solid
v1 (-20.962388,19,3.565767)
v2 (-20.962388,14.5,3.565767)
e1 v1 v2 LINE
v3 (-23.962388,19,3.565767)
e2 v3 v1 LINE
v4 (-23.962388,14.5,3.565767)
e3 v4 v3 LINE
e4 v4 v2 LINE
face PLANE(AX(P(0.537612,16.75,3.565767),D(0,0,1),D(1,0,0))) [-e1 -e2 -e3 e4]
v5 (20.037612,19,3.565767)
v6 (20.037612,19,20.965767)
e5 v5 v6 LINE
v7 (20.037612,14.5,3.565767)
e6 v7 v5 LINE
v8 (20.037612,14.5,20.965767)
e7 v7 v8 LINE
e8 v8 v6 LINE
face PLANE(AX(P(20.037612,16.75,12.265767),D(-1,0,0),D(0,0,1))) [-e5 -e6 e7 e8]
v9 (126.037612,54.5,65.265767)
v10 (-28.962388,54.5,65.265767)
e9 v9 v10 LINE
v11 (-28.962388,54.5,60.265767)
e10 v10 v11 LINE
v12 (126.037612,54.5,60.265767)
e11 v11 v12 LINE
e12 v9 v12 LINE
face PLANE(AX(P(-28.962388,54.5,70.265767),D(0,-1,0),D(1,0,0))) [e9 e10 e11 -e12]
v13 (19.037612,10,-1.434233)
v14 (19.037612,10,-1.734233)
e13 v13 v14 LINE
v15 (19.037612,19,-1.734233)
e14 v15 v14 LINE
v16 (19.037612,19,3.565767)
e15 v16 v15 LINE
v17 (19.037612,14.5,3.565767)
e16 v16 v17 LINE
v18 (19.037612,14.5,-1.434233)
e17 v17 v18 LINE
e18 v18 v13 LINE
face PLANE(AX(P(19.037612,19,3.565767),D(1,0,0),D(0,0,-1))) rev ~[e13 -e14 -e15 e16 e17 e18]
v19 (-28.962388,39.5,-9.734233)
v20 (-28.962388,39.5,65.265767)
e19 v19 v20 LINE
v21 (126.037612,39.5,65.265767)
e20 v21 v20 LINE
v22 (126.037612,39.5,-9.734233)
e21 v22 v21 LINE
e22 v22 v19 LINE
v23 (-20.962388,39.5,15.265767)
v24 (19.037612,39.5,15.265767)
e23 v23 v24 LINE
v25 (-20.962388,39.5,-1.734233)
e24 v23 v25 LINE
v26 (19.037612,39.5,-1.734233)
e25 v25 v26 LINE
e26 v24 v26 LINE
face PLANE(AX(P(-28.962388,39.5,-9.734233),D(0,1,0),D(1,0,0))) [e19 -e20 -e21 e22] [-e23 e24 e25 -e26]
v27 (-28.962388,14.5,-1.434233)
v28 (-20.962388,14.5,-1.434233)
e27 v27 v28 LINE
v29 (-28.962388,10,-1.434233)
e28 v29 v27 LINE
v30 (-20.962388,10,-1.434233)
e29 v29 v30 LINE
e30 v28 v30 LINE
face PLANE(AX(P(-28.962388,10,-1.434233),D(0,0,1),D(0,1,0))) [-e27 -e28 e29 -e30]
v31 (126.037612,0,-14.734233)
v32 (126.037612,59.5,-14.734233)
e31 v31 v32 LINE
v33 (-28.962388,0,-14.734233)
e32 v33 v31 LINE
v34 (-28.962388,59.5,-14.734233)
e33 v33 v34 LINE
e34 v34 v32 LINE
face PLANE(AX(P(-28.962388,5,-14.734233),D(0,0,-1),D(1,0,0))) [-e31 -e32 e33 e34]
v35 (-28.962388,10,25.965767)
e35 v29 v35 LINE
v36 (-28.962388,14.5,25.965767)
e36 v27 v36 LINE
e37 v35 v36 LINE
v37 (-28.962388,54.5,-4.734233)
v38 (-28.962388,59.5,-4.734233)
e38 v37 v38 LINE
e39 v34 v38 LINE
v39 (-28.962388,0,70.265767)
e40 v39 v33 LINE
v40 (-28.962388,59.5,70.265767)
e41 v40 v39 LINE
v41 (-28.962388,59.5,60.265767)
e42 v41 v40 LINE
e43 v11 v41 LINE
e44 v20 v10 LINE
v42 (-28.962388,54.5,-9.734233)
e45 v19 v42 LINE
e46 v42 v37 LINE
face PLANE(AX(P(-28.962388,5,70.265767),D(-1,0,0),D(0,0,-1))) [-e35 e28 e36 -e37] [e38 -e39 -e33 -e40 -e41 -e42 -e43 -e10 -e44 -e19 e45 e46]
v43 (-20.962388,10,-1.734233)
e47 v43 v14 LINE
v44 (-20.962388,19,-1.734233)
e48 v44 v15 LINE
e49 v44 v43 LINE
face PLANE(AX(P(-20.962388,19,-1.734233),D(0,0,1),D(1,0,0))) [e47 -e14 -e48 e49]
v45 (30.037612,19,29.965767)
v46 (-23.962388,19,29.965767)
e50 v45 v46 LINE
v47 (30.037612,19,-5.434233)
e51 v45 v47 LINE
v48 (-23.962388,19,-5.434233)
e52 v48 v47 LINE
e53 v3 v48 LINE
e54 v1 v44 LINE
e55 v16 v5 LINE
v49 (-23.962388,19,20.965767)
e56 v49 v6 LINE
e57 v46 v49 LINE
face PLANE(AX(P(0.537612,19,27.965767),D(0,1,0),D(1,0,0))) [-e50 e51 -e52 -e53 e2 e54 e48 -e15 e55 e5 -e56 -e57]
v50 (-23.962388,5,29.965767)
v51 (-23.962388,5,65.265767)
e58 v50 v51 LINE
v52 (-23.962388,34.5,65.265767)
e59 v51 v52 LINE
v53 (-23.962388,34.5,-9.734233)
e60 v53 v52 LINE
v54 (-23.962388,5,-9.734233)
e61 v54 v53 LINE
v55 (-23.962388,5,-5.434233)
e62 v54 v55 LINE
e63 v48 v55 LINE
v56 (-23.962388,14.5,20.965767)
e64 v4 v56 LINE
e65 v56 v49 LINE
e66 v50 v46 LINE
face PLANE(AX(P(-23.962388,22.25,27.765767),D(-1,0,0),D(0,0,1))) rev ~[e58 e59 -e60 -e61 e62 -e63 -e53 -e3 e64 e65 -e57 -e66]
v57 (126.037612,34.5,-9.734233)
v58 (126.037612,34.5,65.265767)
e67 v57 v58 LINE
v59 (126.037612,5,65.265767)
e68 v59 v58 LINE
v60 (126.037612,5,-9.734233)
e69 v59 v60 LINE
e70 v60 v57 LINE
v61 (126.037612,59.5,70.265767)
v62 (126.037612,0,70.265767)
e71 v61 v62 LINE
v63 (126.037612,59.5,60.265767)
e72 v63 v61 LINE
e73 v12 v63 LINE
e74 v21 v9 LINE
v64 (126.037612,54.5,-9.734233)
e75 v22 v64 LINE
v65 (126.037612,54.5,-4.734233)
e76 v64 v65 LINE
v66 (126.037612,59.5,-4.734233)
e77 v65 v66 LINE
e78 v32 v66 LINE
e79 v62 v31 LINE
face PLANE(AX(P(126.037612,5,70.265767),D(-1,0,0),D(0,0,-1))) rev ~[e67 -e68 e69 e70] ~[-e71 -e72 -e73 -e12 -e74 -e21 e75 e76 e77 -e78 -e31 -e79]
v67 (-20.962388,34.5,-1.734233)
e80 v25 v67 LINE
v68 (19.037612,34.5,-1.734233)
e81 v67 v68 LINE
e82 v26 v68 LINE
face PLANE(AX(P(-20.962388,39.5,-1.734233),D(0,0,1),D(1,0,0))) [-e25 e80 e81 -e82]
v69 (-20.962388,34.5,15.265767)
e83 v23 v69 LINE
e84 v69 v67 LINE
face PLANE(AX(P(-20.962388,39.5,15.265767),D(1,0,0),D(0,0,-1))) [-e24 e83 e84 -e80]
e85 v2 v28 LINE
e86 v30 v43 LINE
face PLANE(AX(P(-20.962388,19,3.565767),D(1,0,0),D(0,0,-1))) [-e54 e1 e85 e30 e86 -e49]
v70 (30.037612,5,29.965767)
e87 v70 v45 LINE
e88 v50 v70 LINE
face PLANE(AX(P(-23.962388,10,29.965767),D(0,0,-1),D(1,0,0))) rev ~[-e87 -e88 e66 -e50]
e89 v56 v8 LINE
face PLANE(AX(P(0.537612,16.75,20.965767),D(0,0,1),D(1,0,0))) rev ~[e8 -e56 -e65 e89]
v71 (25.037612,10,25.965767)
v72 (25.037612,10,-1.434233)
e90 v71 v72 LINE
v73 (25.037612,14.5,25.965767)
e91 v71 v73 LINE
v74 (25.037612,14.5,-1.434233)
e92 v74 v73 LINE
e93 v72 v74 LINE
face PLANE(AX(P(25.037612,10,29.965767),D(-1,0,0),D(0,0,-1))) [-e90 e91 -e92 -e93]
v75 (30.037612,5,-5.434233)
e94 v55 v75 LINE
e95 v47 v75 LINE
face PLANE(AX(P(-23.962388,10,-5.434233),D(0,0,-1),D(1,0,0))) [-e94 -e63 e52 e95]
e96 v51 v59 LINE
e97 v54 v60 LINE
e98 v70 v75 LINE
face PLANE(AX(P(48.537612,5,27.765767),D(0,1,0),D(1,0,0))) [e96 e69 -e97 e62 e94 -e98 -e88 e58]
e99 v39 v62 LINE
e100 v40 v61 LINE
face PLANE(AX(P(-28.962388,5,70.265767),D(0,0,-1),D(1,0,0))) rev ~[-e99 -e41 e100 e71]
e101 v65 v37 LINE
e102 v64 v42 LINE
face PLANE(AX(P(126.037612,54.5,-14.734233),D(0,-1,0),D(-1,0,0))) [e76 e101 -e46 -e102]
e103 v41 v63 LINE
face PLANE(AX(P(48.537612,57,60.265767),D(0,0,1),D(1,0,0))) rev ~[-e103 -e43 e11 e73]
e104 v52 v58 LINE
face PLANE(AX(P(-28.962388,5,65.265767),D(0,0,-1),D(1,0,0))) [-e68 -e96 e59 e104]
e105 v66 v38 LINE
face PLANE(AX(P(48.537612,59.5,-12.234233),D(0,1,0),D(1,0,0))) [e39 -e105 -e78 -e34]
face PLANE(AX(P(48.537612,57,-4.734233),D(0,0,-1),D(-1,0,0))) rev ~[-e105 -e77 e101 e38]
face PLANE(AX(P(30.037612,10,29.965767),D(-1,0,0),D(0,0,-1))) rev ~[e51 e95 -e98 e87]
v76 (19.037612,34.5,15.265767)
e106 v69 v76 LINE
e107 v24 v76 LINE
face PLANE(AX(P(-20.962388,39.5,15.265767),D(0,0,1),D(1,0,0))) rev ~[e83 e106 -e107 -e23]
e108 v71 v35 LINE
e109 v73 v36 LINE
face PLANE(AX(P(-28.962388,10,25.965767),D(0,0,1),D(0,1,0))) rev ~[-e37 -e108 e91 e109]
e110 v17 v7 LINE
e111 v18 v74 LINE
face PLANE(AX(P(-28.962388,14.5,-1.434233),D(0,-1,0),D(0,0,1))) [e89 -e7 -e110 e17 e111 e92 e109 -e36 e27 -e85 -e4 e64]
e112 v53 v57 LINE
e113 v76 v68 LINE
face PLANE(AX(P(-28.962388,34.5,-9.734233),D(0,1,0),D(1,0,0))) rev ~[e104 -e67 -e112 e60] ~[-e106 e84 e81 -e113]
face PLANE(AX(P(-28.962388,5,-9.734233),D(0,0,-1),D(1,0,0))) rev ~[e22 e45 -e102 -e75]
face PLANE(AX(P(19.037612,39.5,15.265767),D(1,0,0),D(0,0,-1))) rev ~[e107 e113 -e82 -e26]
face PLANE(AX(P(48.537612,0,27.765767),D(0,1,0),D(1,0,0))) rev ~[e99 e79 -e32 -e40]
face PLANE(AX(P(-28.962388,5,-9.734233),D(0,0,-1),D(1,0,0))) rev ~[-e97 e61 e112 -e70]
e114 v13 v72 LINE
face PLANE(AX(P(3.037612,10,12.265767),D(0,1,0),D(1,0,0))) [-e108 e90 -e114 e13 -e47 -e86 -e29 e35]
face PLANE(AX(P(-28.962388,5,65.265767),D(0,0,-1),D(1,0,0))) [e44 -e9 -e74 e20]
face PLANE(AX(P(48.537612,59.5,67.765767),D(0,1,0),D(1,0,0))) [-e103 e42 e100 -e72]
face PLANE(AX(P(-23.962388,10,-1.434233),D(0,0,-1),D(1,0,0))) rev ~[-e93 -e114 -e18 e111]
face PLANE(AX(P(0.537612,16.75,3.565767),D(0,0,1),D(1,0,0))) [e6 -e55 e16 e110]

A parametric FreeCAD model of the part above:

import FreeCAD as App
import Part
import Sketcher
from FreeCAD import Vector

doc = App.newDocument("Part")
body = doc.addObject("PartDesign::Body", "Body")

# Sketch on XZ plane
sketch1 = body.newObject("Sketcher::SketchObject", "Sketch")
sketch1.AttachmentSupport = (doc.getObject("XZ_Plane"), [""])
sketch1.MapMode = "FlatFace"
sketch1.addGeometry(Part.LineSegment(Vector(-29, -15, 0), Vector(-29, 70, 0)), False)
sketch1.addGeometry(Part.LineSegment(Vector(-29, 70, 0), Vector(126, 70, 0)), False)
sketch1.addGeometry(Part.LineSegment(Vector(126, 70, 0), Vector(126, -15, 0)), False)
sketch1.addGeometry(Part.LineSegment(Vector(126, -15, 0), Vector(-29, -15, 0)), False)
sketch1.addConstraint(Sketcher.Constraint("Coincident", 0, 2, 1, 1))
sketch1.addConstraint(Sketcher.Constraint("Coincident", 1, 2, 2, 1))
sketch1.addConstraint(Sketcher.Constraint("Coincident", 2, 2, 3, 1))
sketch1.addConstraint(Sketcher.Constraint("Coincident", 3, 2, 0, 1))
sketch1.addConstraint(Sketcher.Constraint("Vertical", 0))
sketch1.addConstraint(Sketcher.Constraint("Horizontal", 1))
sketch1.addConstraint(Sketcher.Constraint("Vertical", 2))
sketch1.addConstraint(Sketcher.Constraint("Horizontal", 3))
sketch1.addConstraint(Sketcher.Constraint("DistanceX", 1, 1, 1, 2, 155.0))
sketch1.addConstraint(Sketcher.Constraint("DistanceY", 0, 1, 0, 2, 85.0))
sketch1.addConstraint(Sketcher.Constraint("DistanceX", 0, 2, -1, 1, 28.962388))
sketch1.addConstraint(Sketcher.Constraint("DistanceY", -1, 1, 0, 2, 70.265767))
pad1 = body.newObject("PartDesign::Pad", "Pad")
pad1.Profile = sketch1
pad1.Length = 5
pad1.Reversed = True

# Sketch on XZ plane
sketch2 = body.newObject("Sketcher::SketchObject", "Sketch001")
sketch2.AttachmentSupport = (doc.getObject("XZ_Plane"), [""])
sketch2.MapMode = "FlatFace"
sketch2.AttachmentOffset = App.Placement(Vector(0, 0, -5), App.Rotation())
sketch2.addGeometry(Part.LineSegment(Vector(-24, -5, 0), Vector(-24, 30, 0)), False)
sketch2.addGeometry(Part.LineSegment(Vector(-24, 30, 0), Vector(30, 30, 0)), False)
sketch2.addGeometry(Part.LineSegment(Vector(30, 30, 0), Vector(30, -5, 0)), False)
sketch2.addGeometry(Part.LineSegment(Vector(30, -5, 0), Vector(-24, -5, 0)), False)
sketch2.addConstraint(Sketcher.Constraint("Coincident", 0, 2, 1, 1))
sketch2.addConstraint(Sketcher.Constraint("Coincident", 1, 2, 2, 1))
sketch2.addConstraint(Sketcher.Constraint("Coincident", 2, 2, 3, 1))
sketch2.addConstraint(Sketcher.Constraint("Coincident", 3, 2, 0, 1))
sketch2.addConstraint(Sketcher.Constraint("Vertical", 0))
sketch2.addConstraint(Sketcher.Constraint("Horizontal", 1))
sketch2.addConstraint(Sketcher.Constraint("Vertical", 2))
sketch2.addConstraint(Sketcher.Constraint("Horizontal", 3))
sketch2.addConstraint(Sketcher.Constraint("DistanceX", 1, 1, 1, 2, 54.0))
sketch2.addConstraint(Sketcher.Constraint("DistanceY", 0, 1, 0, 2, 35.4))
sketch2.addConstraint(Sketcher.Constraint("DistanceX", 0, 2, -1, 1, 23.962388))
sketch2.addConstraint(Sketcher.Constraint("DistanceY", -1, 1, 0, 2, 29.965767))
pad2 = body.newObject("PartDesign::Pad", "Pad001")
pad2.Profile = sketch2
pad2.Length = 5
pad2.Reversed = True

# Sketch on XZ plane
sketch3 = body.newObject("Sketcher::SketchObject", "Sketch002")
sketch3.AttachmentSupport = (doc.getObject("XZ_Plane"), [""])
sketch3.MapMode = "FlatFace"
sketch3.AttachmentOffset = App.Placement(Vector(0, 0, -10), App.Rotation())
sketch3.addGeometry(Part.LineSegment(Vector(25, -5, 0), Vector(25, 30, 0)), False)
sketch3.addGeometry(Part.LineSegment(Vector(25, 30, 0), Vector(30, 30, 0)), False)
sketch3.addGeometry(Part.LineSegment(Vector(30, 30, 0), Vector(30, -5, 0)), False)
sketch3.addGeometry(Part.LineSegment(Vector(30, -5, 0), Vector(25, -5, 0)), False)
sketch3.addConstraint(Sketcher.Constraint("Coincident", 0, 2, 1, 1))
sketch3.addConstraint(Sketcher.Constraint("Coincident", 1, 2, 2, 1))
sketch3.addConstraint(Sketcher.Constraint("Coincident", 2, 2, 3, 1))
sketch3.addConstraint(Sketcher.Constraint("Coincident", 3, 2, 0, 1))
sketch3.addConstraint(Sketcher.Constraint("Vertical", 0))
sketch3.addConstraint(Sketcher.Constraint("Horizontal", 1))
sketch3.addConstraint(Sketcher.Constraint("Vertical", 2))
sketch3.addConstraint(Sketcher.Constraint("Horizontal", 3))
sketch3.addConstraint(Sketcher.Constraint("DistanceX", 1, 1, 1, 2, 5.0))
sketch3.addConstraint(Sketcher.Constraint("DistanceY", 0, 1, 0, 2, 35.4))
sketch3.addConstraint(Sketcher.Constraint("DistanceX", -1, 1, 0, 2, 25.037612))
sketch3.addConstraint(Sketcher.Constraint("DistanceY", -1, 1, 0, 2, 29.965767))
pad3 = body.newObject("PartDesign::Pad", "Pad002")
pad3.Profile = sketch3
pad3.Length = 9
pad3.Reversed = True

# Sketch on XZ plane
sketch4 = body.newObject("Sketcher::SketchObject", "Sketch003")
sketch4.AttachmentSupport = (doc.getObject("XZ_Plane"), [""])
sketch4.MapMode = "FlatFace"
sketch4.AttachmentOffset = App.Placement(Vector(0, 0, -10), App.Rotation())
sketch4.addGeometry(Part.LineSegment(Vector(-24, -5.4, 0), Vector(-24, -1.4, 0)), False)
sketch4.addGeometry(Part.LineSegment(Vector(-24, -1.4, 0), Vector(25, -1.4, 0)), False)
sketch4.addGeometry(Part.LineSegment(Vector(25, -1.4, 0), Vector(25, -5.4, 0)), False)
sketch4.addGeometry(Part.LineSegment(Vector(25, -5.4, 0), Vector(-24, -5.4, 0)), False)
sketch4.addConstraint(Sketcher.Constraint("Coincident", 0, 2, 1, 1))
sketch4.addConstraint(Sketcher.Constraint("Coincident", 1, 2, 2, 1))
sketch4.addConstraint(Sketcher.Constraint("Coincident", 2, 2, 3, 1))
sketch4.addConstraint(Sketcher.Constraint("Coincident", 3, 2, 0, 1))
sketch4.addConstraint(Sketcher.Constraint("Vertical", 0))
sketch4.addConstraint(Sketcher.Constraint("Horizontal", 1))
sketch4.addConstraint(Sketcher.Constraint("Vertical", 2))
sketch4.addConstraint(Sketcher.Constraint("Horizontal", 3))
sketch4.addConstraint(Sketcher.Constraint("DistanceX", 1, 1, 1, 2, 49.0))
sketch4.addConstraint(Sketcher.Constraint("DistanceY", 0, 1, 0, 2, 4.0))
sketch4.addConstraint(Sketcher.Constraint("DistanceX", 0, 2, -1, 1, 23.962388))
sketch4.addConstraint(Sketcher.Constraint("DistanceY", 0, 2, -1, 1, 1.434233))
pad4 = body.newObject("PartDesign::Pad", "Pad003")
pad4.Profile = sketch4
pad4.Length = 9
pad4.Reversed = True

# Sketch on XY plane
sketch5 = body.newObject("Sketcher::SketchObject", "Sketch004")
sketch5.AttachmentSupport = (doc.getObject("XY_Plane"), [""])
sketch5.MapMode = "FlatFace"
sketch5.AttachmentOffset = App.Placement(Vector(0, 0, -1.434233), App.Rotation())
sketch5.addGeometry(Part.LineSegment(Vector(-24, 19, 0), Vector(-24, 14.5, 0)), False)
sketch5.addGeometry(Part.LineSegment(Vector(-24, 14.5, 0), Vector(25, 14.5, 0)), False)
sketch5.addGeometry(Part.LineSegment(Vector(25, 14.5, 0), Vector(25, 19, 0)), False)
sketch5.addGeometry(Part.LineSegment(Vector(25, 19, 0), Vector(-24, 19, 0)), False)
sketch5.addConstraint(Sketcher.Constraint("Coincident", 0, 2, 1, 1))
sketch5.addConstraint(Sketcher.Constraint("Coincident", 1, 2, 2, 1))
sketch5.addConstraint(Sketcher.Constraint("Coincident", 2, 2, 3, 1))
sketch5.addConstraint(Sketcher.Constraint("Coincident", 3, 2, 0, 1))
sketch5.addConstraint(Sketcher.Constraint("Vertical", 0))
sketch5.addConstraint(Sketcher.Constraint("Horizontal", 1))
sketch5.addConstraint(Sketcher.Constraint("Vertical", 2))
sketch5.addConstraint(Sketcher.Constraint("Horizontal", 3))
sketch5.addConstraint(Sketcher.Constraint("DistanceX", 1, 1, 1, 2, 49.0))
sketch5.addConstraint(Sketcher.Constraint("DistanceY", 0, 2, 0, 1, 4.5))
sketch5.addConstraint(Sketcher.Constraint("DistanceY", -1, 1, 2, 2, 19.0))
sketch5.addConstraint(Sketcher.Constraint("DistanceX", 0, 2, -1, 1, 23.962388))
pad5 = body.newObject("PartDesign::Pad", "Pad004")
pad5.Profile = sketch5
pad5.Length = 5

# Sketch on YZ plane
sketch6 = body.newObject("Sketcher::SketchObject", "Sketch005")
sketch6.AttachmentSupport = (doc.getObject("YZ_Plane"), [""])
sketch6.MapMode = "FlatFace"
sketch6.AttachmentOffset = App.Placement(Vector(0, 0, 25.037612), App.Rotation())
sketch6.addGeometry(Part.LineSegment(Vector(19, 3.6, 0), Vector(14.5, 3.6, 0)), False)
sketch6.addGeometry(Part.LineSegment(Vector(14.5, 3.6, 0), Vector(14.5, 21, 0)), False)
sketch6.addGeometry(Part.LineSegment(Vector(14.5, 21, 0), Vector(19, 21, 0)), False)
sketch6.addGeometry(Part.LineSegment(Vector(19, 21, 0), Vector(19, 3.6, 0)), False)
sketch6.addConstraint(Sketcher.Constraint("Coincident", 0, 2, 1, 1))
sketch6.addConstraint(Sketcher.Constraint("Coincident", 1, 2, 2, 1))
sketch6.addConstraint(Sketcher.Constraint("Coincident", 2, 2, 3, 1))
sketch6.addConstraint(Sketcher.Constraint("Coincident", 3, 2, 0, 1))
sketch6.addConstraint(Sketcher.Constraint("Horizontal", 0))
sketch6.addConstraint(Sketcher.Constraint("Vertical", 1))
sketch6.addConstraint(Sketcher.Constraint("Horizontal", 2))
sketch6.addConstraint(Sketcher.Constraint("Vertical", 3))
sketch6.addConstraint(Sketcher.Constraint("DistanceX", 0, 2, 0, 1, 4.5))
sketch6.addConstraint(Sketcher.Constraint("DistanceY", 1, 1, 1, 2, 17.4))
sketch6.addConstraint(Sketcher.Constraint("DistanceX", -1, 1, 2, 2, 19.0))
sketch6.addConstraint(Sketcher.Constraint("DistanceY", -1, 1, 0, 2, 3.565767))
pad6 = body.newObject("PartDesign::Pad", "Pad005")
pad6.Profile = sketch6
pad6.Length = 5
pad6.Reversed = True

# Sketch on XZ plane
sketch7 = body.newObject("Sketcher::SketchObject", "Sketch006")
sketch7.AttachmentSupport = (doc.getObject("XZ_Plane"), [""])
sketch7.MapMode = "FlatFace"
sketch7.AttachmentOffset = App.Placement(Vector(0, 0, -10), App.Rotation())
sketch7.addGeometry(Part.LineSegment(Vector(-24, 26, 0), Vector(-24, 30, 0)), False)
sketch7.addGeometry(Part.LineSegment(Vector(-24, 30, 0), Vector(25, 30, 0)), False)
sketch7.addGeometry(Part.LineSegment(Vector(25, 30, 0), Vector(25, 26, 0)), False)
sketch7.addGeometry(Part.LineSegment(Vector(25, 26, 0), Vector(-24, 26, 0)), False)
sketch7.addConstraint(Sketcher.Constraint("Coincident", 0, 2, 1, 1))
sketch7.addConstraint(Sketcher.Constraint("Coincident", 1, 2, 2, 1))
sketch7.addConstraint(Sketcher.Constraint("Coincident", 2, 2, 3, 1))
sketch7.addConstraint(Sketcher.Constraint("Coincident", 3, 2, 0, 1))
sketch7.addConstraint(Sketcher.Constraint("Vertical", 0))
sketch7.addConstraint(Sketcher.Constraint("Horizontal", 1))
sketch7.addConstraint(Sketcher.Constraint("Vertical", 2))
sketch7.addConstraint(Sketcher.Constraint("Horizontal", 3))
sketch7.addConstraint(Sketcher.Constraint("DistanceX", 1, 1, 1, 2, 49.0))
sketch7.addConstraint(Sketcher.Constraint("DistanceY", 0, 1, 0, 2, 4.0))
sketch7.addConstraint(Sketcher.Constraint("DistanceX", 0, 2, -1, 1, 23.962388))
sketch7.addConstraint(Sketcher.Constraint("DistanceY", -1, 1, 0, 2, 29.965767))
pad7 = body.newObject("PartDesign::Pad", "Pad006")
pad7.Profile = sketch7
pad7.Length = 9
pad7.Reversed = True

# Sketch on XY plane
sketch8 = body.newObject("Sketcher::SketchObject", "Sketch007")
sketch8.AttachmentSupport = (doc.getObject("XY_Plane"), [""])
sketch8.MapMode = "FlatFace"
sketch8.AttachmentOffset = App.Placement(Vector(0, 0, 29.965767), App.Rotation())
sketch8.addGeometry(Part.LineSegment(Vector(-24, 19, 0), Vector(-24, 14.5, 0)), False)
sketch8.addGeometry(Part.LineSegment(Vector(-24, 14.5, 0), Vector(25, 14.5, 0)), False)
sketch8.addGeometry(Part.LineSegment(Vector(25, 14.5, 0), Vector(25, 19, 0)), False)
sketch8.addGeometry(Part.LineSegment(Vector(25, 19, 0), Vector(-24, 19, 0)), False)
sketch8.addConstraint(Sketcher.Constraint("Coincident", 0, 2, 1, 1))
sketch8.addConstraint(Sketcher.Constraint("Coincident", 1, 2, 2, 1))
sketch8.addConstraint(Sketcher.Constraint("Coincident", 2, 2, 3, 1))
sketch8.addConstraint(Sketcher.Constraint("Coincident", 3, 2, 0, 1))
sketch8.addConstraint(Sketcher.Constraint("Vertical", 0))
sketch8.addConstraint(Sketcher.Constraint("Horizontal", 1))
sketch8.addConstraint(Sketcher.Constraint("Vertical", 2))
sketch8.addConstraint(Sketcher.Constraint("Horizontal", 3))
sketch8.addConstraint(Sketcher.Constraint("DistanceX", 1, 1, 1, 2, 49.0))
sketch8.addConstraint(Sketcher.Constraint("DistanceY", 0, 2, 0, 1, 4.5))
sketch8.addConstraint(Sketcher.Constraint("DistanceY", -1, 1, 2, 2, 19.0))
sketch8.addConstraint(Sketcher.Constraint("DistanceX", 0, 2, -1, 1, 23.962388))
pad8 = body.newObject("PartDesign::Pad", "Pad007")
pad8.Profile = sketch8
pad8.Length = 9
pad8.Reversed = True

# Sketch on XZ plane
sketch9 = body.newObject("Sketcher::SketchObject", "Sketch008")
sketch9.AttachmentSupport = (doc.getObject("XZ_Plane"), [""])
sketch9.MapMode = "FlatFace"
sketch9.AttachmentOffset = App.Placement(Vector(0, 0, -19), App.Rotation())
sketch9.addGeometry(Part.LineSegment(Vector(-21, -2, 0), Vector(-21, 4, 0)), False)
sketch9.addGeometry(Part.LineSegment(Vector(-21, 4, 0), Vector(19, 4, 0)), False)
sketch9.addGeometry(Part.LineSegment(Vector(19, 4, 0), Vector(19, -2, 0)), False)
sketch9.addGeometry(Part.LineSegment(Vector(19, -2, 0), Vector(-21, -2, 0)), False)
sketch9.addConstraint(Sketcher.Constraint("Coincident", 0, 2, 1, 1))
sketch9.addConstraint(Sketcher.Constraint("Coincident", 1, 2, 2, 1))
sketch9.addConstraint(Sketcher.Constraint("Coincident", 2, 2, 3, 1))
sketch9.addConstraint(Sketcher.Constraint("Coincident", 3, 2, 0, 1))
sketch9.addConstraint(Sketcher.Constraint("Vertical", 0))
sketch9.addConstraint(Sketcher.Constraint("Horizontal", 1))
sketch9.addConstraint(Sketcher.Constraint("Vertical", 2))
sketch9.addConstraint(Sketcher.Constraint("Horizontal", 3))
sketch9.addConstraint(Sketcher.Constraint("DistanceX", 1, 1, 1, 2, 40.0))
sketch9.addConstraint(Sketcher.Constraint("DistanceY", 0, 1, 0, 2, 5.3))
sketch9.addConstraint(Sketcher.Constraint("DistanceX", 0, 2, -1, 1, 20.962388))
sketch9.addConstraint(Sketcher.Constraint("DistanceY", -1, 1, 0, 2, 3.565767))
pocket1 = body.newObject("PartDesign::Pocket", "Pocket")
pocket1.Profile = sketch9
pocket1.Length = 9
pocket1.Reversed = True

# Sketch on XZ plane
sketch10 = body.newObject("Sketcher::SketchObject", "Sketch009")
sketch10.AttachmentSupport = (doc.getObject("XZ_Plane"), [""])
sketch10.MapMode = "FlatFace"
sketch10.AttachmentOffset = App.Placement(Vector(0, 0, -5), App.Rotation())
sketch10.addGeometry(Part.LineSegment(Vector(-29, -15, 0), Vector(-29, -10, 0)), False)
sketch10.addGeometry(Part.LineSegment(Vector(-29, -10, 0), Vector(126, -10, 0)), False)
sketch10.addGeometry(Part.LineSegment(Vector(126, -10, 0), Vector(126, -15, 0)), False)
sketch10.addGeometry(Part.LineSegment(Vector(126, -15, 0), Vector(-29, -15, 0)), False)
sketch10.addConstraint(Sketcher.Constraint("Coincident", 0, 2, 1, 1))
sketch10.addConstraint(Sketcher.Constraint("Coincident", 1, 2, 2, 1))
sketch10.addConstraint(Sketcher.Constraint("Coincident", 2, 2, 3, 1))
sketch10.addConstraint(Sketcher.Constraint("Coincident", 3, 2, 0, 1))
sketch10.addConstraint(Sketcher.Constraint("Vertical", 0))
sketch10.addConstraint(Sketcher.Constraint("Horizontal", 1))
sketch10.addConstraint(Sketcher.Constraint("Vertical", 2))
sketch10.addConstraint(Sketcher.Constraint("Horizontal", 3))
sketch10.addConstraint(Sketcher.Constraint("DistanceX", 1, 1, 1, 2, 155.0))
sketch10.addConstraint(Sketcher.Constraint("DistanceY", 0, 1, 0, 2, 5.0))
sketch10.addConstraint(Sketcher.Constraint("DistanceX", 0, 2, -1, 1, 28.962388))
sketch10.addConstraint(Sketcher.Constraint("DistanceY", 0, 2, -1, 1, 9.734233))
pad9 = body.newObject("PartDesign::Pad", "Pad008")
pad9.Profile = sketch10
pad9.Length = 54.5
pad9.Reversed = True

# Sketch on XY plane
sketch11 = body.newObject("Sketcher::SketchObject", "Sketch010")
sketch11.AttachmentSupport = (doc.getObject("XY_Plane"), [""])
sketch11.MapMode = "FlatFace"
sketch11.AttachmentOffset = App.Placement(Vector(0, 0, -9.734233), App.Rotation())
sketch11.addGeometry(Part.LineSegment(Vector(-29, 40, 0), Vector(-29, 34, 0)), False)
sketch11.addGeometry(Part.LineSegment(Vector(-29, 34, 0), Vector(126, 34, 0)), False)
sketch11.addGeometry(Part.LineSegment(Vector(126, 34, 0), Vector(126, 40, 0)), False)
sketch11.addGeometry(Part.LineSegment(Vector(126, 40, 0), Vector(-29, 40, 0)), False)
sketch11.addConstraint(Sketcher.Constraint("Coincident", 0, 2, 1, 1))
sketch11.addConstraint(Sketcher.Constraint("Coincident", 1, 2, 2, 1))
sketch11.addConstraint(Sketcher.Constraint("Coincident", 2, 2, 3, 1))
sketch11.addConstraint(Sketcher.Constraint("Coincident", 3, 2, 0, 1))
sketch11.addConstraint(Sketcher.Constraint("Vertical", 0))
sketch11.addConstraint(Sketcher.Constraint("Horizontal", 1))
sketch11.addConstraint(Sketcher.Constraint("Vertical", 2))
sketch11.addConstraint(Sketcher.Constraint("Horizontal", 3))
sketch11.addConstraint(Sketcher.Constraint("DistanceX", 1, 1, 1, 2, 155.0))
sketch11.addConstraint(Sketcher.Constraint("DistanceY", 0, 2, 0, 1, 5.0))
sketch11.addConstraint(Sketcher.Constraint("DistanceY", -1, 1, 0, 2, 34.5))
sketch11.addConstraint(Sketcher.Constraint("DistanceX", 0, 2, -1, 1, 28.962388))
pad10 = body.newObject("PartDesign::Pad", "Pad009")
pad10.Profile = sketch11
pad10.Length = 75

# Sketch on XZ plane
sketch12 = body.newObject("Sketcher::SketchObject", "Sketch011")
sketch12.AttachmentSupport = (doc.getObject("XZ_Plane"), [""])
sketch12.MapMode = "FlatFace"
sketch12.AttachmentOffset = App.Placement(Vector(0, 0, -5), App.Rotation())
sketch12.addGeometry(Part.LineSegment(Vector(-29, 65, 0), Vector(-29, 70, 0)), False)
sketch12.addGeometry(Part.LineSegment(Vector(-29, 70, 0), Vector(126, 70, 0)), False)
sketch12.addGeometry(Part.LineSegment(Vector(126, 70, 0), Vector(126, 65, 0)), False)
sketch12.addGeometry(Part.LineSegment(Vector(126, 65, 0), Vector(-29, 65, 0)), False)
sketch12.addConstraint(Sketcher.Constraint("Coincident", 0, 2, 1, 1))
sketch12.addConstraint(Sketcher.Constraint("Coincident", 1, 2, 2, 1))
sketch12.addConstraint(Sketcher.Constraint("Coincident", 2, 2, 3, 1))
sketch12.addConstraint(Sketcher.Constraint("Coincident", 3, 2, 0, 1))
sketch12.addConstraint(Sketcher.Constraint("Vertical", 0))
sketch12.addConstraint(Sketcher.Constraint("Horizontal", 1))
sketch12.addConstraint(Sketcher.Constraint("Vertical", 2))
sketch12.addConstraint(Sketcher.Constraint("Horizontal", 3))
sketch12.addConstraint(Sketcher.Constraint("DistanceX", 1, 1, 1, 2, 155.0))
sketch12.addConstraint(Sketcher.Constraint("DistanceY", 0, 1, 0, 2, 5.0))
sketch12.addConstraint(Sketcher.Constraint("DistanceX", 0, 2, -1, 1, 28.962388))
sketch12.addConstraint(Sketcher.Constraint("DistanceY", -1, 1, 0, 2, 70.265767))
pad11 = body.newObject("PartDesign::Pad", "Pad010")
pad11.Profile = sketch12
pad11.Length = 54.5
pad11.Reversed = True

# Sketch on YZ plane
sketch13 = body.newObject("Sketcher::SketchObject", "Sketch012")
sketch13.AttachmentSupport = (doc.getObject("YZ_Plane"), [""])
sketch13.MapMode = "FlatFace"
sketch13.AttachmentOffset = App.Placement(Vector(0, 0, -28.962388), App.Rotation())
sketch13.addGeometry(Part.LineSegment(Vector(40, -10, 0), Vector(5, -10, 0)), False)
sketch13.addGeometry(Part.LineSegment(Vector(5, -10, 0), Vector(5, 65, 0)), False)
sketch13.addGeometry(Part.LineSegment(Vector(5, 65, 0), Vector(40, 65, 0)), False)
sketch13.addGeometry(Part.LineSegment(Vector(40, 65, 0), Vector(40, -10, 0)), False)
sketch13.addConstraint(Sketcher.Constraint("Coincident", 0, 2, 1, 1))
sketch13.addConstraint(Sketcher.Constraint("Coincident", 1, 2, 2, 1))
sketch13.addConstraint(Sketcher.Constraint("Coincident", 2, 2, 3, 1))
sketch13.addConstraint(Sketcher.Constraint("Coincident", 3, 2, 0, 1))
sketch13.addConstraint(Sketcher.Constraint("Horizontal", 0))
sketch13.addConstraint(Sketcher.Constraint("Vertical", 1))
sketch13.addConstraint(Sketcher.Constraint("Horizontal", 2))
sketch13.addConstraint(Sketcher.Constraint("Vertical", 3))
sketch13.addConstraint(Sketcher.Constraint("DistanceY", 1, 1, 1, 2, 75.0))
sketch13.addConstraint(Sketcher.Constraint("DistanceX", 0, 2, 0, 1, 34.5))
sketch13.addConstraint(Sketcher.Constraint("DistanceX", -1, 1, 0, 2, 5.0))
sketch13.addConstraint(Sketcher.Constraint("DistanceY", 0, 2, -1, 1, 9.734233))
pad12 = body.newObject("PartDesign::Pad", "Pad011")
pad12.Profile = sketch13
pad12.Length = 5

# Sketch on XZ plane
sketch14 = body.newObject("Sketcher::SketchObject", "Sketch013")
sketch14.AttachmentSupport = (doc.getObject("XZ_Plane"), [""])
sketch14.MapMode = "FlatFace"
sketch14.AttachmentOffset = App.Placement(Vector(0, 0, -39.5), App.Rotation())
sketch14.addGeometry(Part.LineSegment(Vector(-21, -2, 0), Vector(-21, 15, 0)), False)
sketch14.addGeometry(Part.LineSegment(Vector(-21, 15, 0), Vector(19, 15, 0)), False)
sketch14.addGeometry(Part.LineSegment(Vector(19, 15, 0), Vector(19, -2, 0)), False)
sketch14.addGeometry(Part.LineSegment(Vector(19, -2, 0), Vector(-21, -2, 0)), False)
sketch14.addConstraint(Sketcher.Constraint("Coincident", 0, 2, 1, 1))
sketch14.addConstraint(Sketcher.Constraint("Coincident", 1, 2, 2, 1))
sketch14.addConstraint(Sketcher.Constraint("Coincident", 2, 2, 3, 1))
sketch14.addConstraint(Sketcher.Constraint("Coincident", 3, 2, 0, 1))
sketch14.addConstraint(Sketcher.Constraint("Vertical", 0))
sketch14.addConstraint(Sketcher.Constraint("Horizontal", 1))
sketch14.addConstraint(Sketcher.Constraint("Vertical", 2))
sketch14.addConstraint(Sketcher.Constraint("Horizontal", 3))
sketch14.addConstraint(Sketcher.Constraint("DistanceX", 1, 1, 1, 2, 40.0))
sketch14.addConstraint(Sketcher.Constraint("DistanceY", 0, 1, 0, 2, 17.0))
sketch14.addConstraint(Sketcher.Constraint("DistanceX", 0, 2, -1, 1, 20.962388))
sketch14.addConstraint(Sketcher.Constraint("DistanceY", -1, 1, 0, 2, 15.265767))
pocket2 = body.newObject("PartDesign::Pocket", "Pocket001")
pocket2.Profile = sketch14
pocket2.Length = 5
pocket2.Reversed = True

# Sketch on YZ plane
sketch15 = body.newObject("Sketcher::SketchObject", "Sketch014")
sketch15.AttachmentSupport = (doc.getObject("YZ_Plane"), [""])
sketch15.MapMode = "FlatFace"
sketch15.AttachmentOffset = App.Placement(Vector(0, 0, -28.962388), App.Rotation())
sketch15.addGeometry(Part.LineSegment(Vector(14.5, -1.4, 0), Vector(10, -1.4, 0)), False)
sketch15.addGeometry(Part.LineSegment(Vector(10, -1.4, 0), Vector(10, 26, 0)), False)
sketch15.addGeometry(Part.LineSegment(Vector(10, 26, 0), Vector(14.5, 26, 0)), False)
sketch15.addGeometry(Part.LineSegment(Vector(14.5, 26, 0), Vector(14.5, -1.4, 0)), False)
sketch15.addConstraint(Sketcher.Constraint("Coincident", 0, 2, 1, 1))
sketch15.addConstraint(Sketcher.Constraint("Coincident", 1, 2, 2, 1))
sketch15.addConstraint(Sketcher.Constraint("Coincident", 2, 2, 3, 1))
sketch15.addConstraint(Sketcher.Constraint("Coincident", 3, 2, 0, 1))
sketch15.addConstraint(Sketcher.Constraint("Horizontal", 0))
sketch15.addConstraint(Sketcher.Constraint("Vertical", 1))
sketch15.addConstraint(Sketcher.Constraint("Horizontal", 2))
sketch15.addConstraint(Sketcher.Constraint("Vertical", 3))
sketch15.addConstraint(Sketcher.Constraint("DistanceX", 0, 2, 0, 1, 4.5))
sketch15.addConstraint(Sketcher.Constraint("DistanceY", 1, 1, 1, 2, 27.4))
sketch15.addConstraint(Sketcher.Constraint("DistanceX", -1, 1, 0, 2, 10.0))
sketch15.addConstraint(Sketcher.Constraint("DistanceY", 0, 2, -1, 1, 1.434233))
pocket3 = body.newObject("PartDesign::Pocket", "Pocket002")
pocket3.Profile = sketch15
pocket3.Length = 5
pocket3.Reversed = True

# Sketch on XY plane
sketch16 = body.newObject("Sketcher::SketchObject", "Sketch015")
sketch16.AttachmentSupport = (doc.getObject("XY_Plane"), [""])
sketch16.MapMode = "FlatFace"
sketch16.AttachmentOffset = App.Placement(Vector(0, 0, 70.265767), App.Rotation())
sketch16.addGeometry(Part.LineSegment(Vector(-29, 60, 0), Vector(-29, 54, 0)), False)
sketch16.addGeometry(Part.LineSegment(Vector(-29, 54, 0), Vector(126, 54, 0)), False)
sketch16.addGeometry(Part.LineSegment(Vector(126, 54, 0), Vector(126, 60, 0)), False)
sketch16.addGeometry(Part.LineSegment(Vector(126, 60, 0), Vector(-29, 60, 0)), False)
sketch16.addConstraint(Sketcher.Constraint("Coincident", 0, 2, 1, 1))
sketch16.addConstraint(Sketcher.Constraint("Coincident", 1, 2, 2, 1))
sketch16.addConstraint(Sketcher.Constraint("Coincident", 2, 2, 3, 1))
sketch16.addConstraint(Sketcher.Constraint("Coincident", 3, 2, 0, 1))
sketch16.addConstraint(Sketcher.Constraint("Vertical", 0))
sketch16.addConstraint(Sketcher.Constraint("Horizontal", 1))
sketch16.addConstraint(Sketcher.Constraint("Vertical", 2))
sketch16.addConstraint(Sketcher.Constraint("Horizontal", 3))
sketch16.addConstraint(Sketcher.Constraint("DistanceX", 1, 1, 1, 2, 155.0))
sketch16.addConstraint(Sketcher.Constraint("DistanceY", 0, 2, 0, 1, 5.0))
sketch16.addConstraint(Sketcher.Constraint("DistanceY", -1, 1, 0, 2, 54.5))
sketch16.addConstraint(Sketcher.Constraint("DistanceX", 0, 2, -1, 1, 28.962388))
pad13 = body.newObject("PartDesign::Pad", "Pad012")
pad13.Profile = sketch16
pad13.Length = 10
pad13.Reversed = True

# Sketch on XY plane
sketch17 = body.newObject("Sketcher::SketchObject", "Sketch016")
sketch17.AttachmentSupport = (doc.getObject("XY_Plane"), [""])
sketch17.MapMode = "FlatFace"
sketch17.AttachmentOffset = App.Placement(Vector(0, 0, -14.734233), App.Rotation())
sketch17.addGeometry(Part.LineSegment(Vector(126, 60, 0), Vector(126, 54, 0)), False)
sketch17.addGeometry(Part.LineSegment(Vector(126, 54, 0), Vector(-29, 54, 0)), False)
sketch17.addGeometry(Part.LineSegment(Vector(-29, 54, 0), Vector(-29, 60, 0)), False)
sketch17.addGeometry(Part.LineSegment(Vector(-29, 60, 0), Vector(126, 60, 0)), False)
sketch17.addConstraint(Sketcher.Constraint("Coincident", 0, 2, 1, 1))
sketch17.addConstraint(Sketcher.Constraint("Coincident", 1, 2, 2, 1))
sketch17.addConstraint(Sketcher.Constraint("Coincident", 2, 2, 3, 1))
sketch17.addConstraint(Sketcher.Constraint("Coincident", 3, 2, 0, 1))
sketch17.addConstraint(Sketcher.Constraint("Vertical", 0))
sketch17.addConstraint(Sketcher.Constraint("Horizontal", 1))
sketch17.addConstraint(Sketcher.Constraint("Vertical", 2))
sketch17.addConstraint(Sketcher.Constraint("Horizontal", 3))
sketch17.addConstraint(Sketcher.Constraint("DistanceX", 1, 2, 1, 1, 155.0))
sketch17.addConstraint(Sketcher.Constraint("DistanceY", 0, 2, 0, 1, 5.0))
sketch17.addConstraint(Sketcher.Constraint("DistanceY", -1, 1, 0, 2, 54.5))
sketch17.addConstraint(Sketcher.Constraint("DistanceX", -1, 1, 0, 2, 126.037612))
pad14 = body.newObject("PartDesign::Pad", "Pad013")
pad14.Profile = sketch17
pad14.Length = 10

doc.recompute()
